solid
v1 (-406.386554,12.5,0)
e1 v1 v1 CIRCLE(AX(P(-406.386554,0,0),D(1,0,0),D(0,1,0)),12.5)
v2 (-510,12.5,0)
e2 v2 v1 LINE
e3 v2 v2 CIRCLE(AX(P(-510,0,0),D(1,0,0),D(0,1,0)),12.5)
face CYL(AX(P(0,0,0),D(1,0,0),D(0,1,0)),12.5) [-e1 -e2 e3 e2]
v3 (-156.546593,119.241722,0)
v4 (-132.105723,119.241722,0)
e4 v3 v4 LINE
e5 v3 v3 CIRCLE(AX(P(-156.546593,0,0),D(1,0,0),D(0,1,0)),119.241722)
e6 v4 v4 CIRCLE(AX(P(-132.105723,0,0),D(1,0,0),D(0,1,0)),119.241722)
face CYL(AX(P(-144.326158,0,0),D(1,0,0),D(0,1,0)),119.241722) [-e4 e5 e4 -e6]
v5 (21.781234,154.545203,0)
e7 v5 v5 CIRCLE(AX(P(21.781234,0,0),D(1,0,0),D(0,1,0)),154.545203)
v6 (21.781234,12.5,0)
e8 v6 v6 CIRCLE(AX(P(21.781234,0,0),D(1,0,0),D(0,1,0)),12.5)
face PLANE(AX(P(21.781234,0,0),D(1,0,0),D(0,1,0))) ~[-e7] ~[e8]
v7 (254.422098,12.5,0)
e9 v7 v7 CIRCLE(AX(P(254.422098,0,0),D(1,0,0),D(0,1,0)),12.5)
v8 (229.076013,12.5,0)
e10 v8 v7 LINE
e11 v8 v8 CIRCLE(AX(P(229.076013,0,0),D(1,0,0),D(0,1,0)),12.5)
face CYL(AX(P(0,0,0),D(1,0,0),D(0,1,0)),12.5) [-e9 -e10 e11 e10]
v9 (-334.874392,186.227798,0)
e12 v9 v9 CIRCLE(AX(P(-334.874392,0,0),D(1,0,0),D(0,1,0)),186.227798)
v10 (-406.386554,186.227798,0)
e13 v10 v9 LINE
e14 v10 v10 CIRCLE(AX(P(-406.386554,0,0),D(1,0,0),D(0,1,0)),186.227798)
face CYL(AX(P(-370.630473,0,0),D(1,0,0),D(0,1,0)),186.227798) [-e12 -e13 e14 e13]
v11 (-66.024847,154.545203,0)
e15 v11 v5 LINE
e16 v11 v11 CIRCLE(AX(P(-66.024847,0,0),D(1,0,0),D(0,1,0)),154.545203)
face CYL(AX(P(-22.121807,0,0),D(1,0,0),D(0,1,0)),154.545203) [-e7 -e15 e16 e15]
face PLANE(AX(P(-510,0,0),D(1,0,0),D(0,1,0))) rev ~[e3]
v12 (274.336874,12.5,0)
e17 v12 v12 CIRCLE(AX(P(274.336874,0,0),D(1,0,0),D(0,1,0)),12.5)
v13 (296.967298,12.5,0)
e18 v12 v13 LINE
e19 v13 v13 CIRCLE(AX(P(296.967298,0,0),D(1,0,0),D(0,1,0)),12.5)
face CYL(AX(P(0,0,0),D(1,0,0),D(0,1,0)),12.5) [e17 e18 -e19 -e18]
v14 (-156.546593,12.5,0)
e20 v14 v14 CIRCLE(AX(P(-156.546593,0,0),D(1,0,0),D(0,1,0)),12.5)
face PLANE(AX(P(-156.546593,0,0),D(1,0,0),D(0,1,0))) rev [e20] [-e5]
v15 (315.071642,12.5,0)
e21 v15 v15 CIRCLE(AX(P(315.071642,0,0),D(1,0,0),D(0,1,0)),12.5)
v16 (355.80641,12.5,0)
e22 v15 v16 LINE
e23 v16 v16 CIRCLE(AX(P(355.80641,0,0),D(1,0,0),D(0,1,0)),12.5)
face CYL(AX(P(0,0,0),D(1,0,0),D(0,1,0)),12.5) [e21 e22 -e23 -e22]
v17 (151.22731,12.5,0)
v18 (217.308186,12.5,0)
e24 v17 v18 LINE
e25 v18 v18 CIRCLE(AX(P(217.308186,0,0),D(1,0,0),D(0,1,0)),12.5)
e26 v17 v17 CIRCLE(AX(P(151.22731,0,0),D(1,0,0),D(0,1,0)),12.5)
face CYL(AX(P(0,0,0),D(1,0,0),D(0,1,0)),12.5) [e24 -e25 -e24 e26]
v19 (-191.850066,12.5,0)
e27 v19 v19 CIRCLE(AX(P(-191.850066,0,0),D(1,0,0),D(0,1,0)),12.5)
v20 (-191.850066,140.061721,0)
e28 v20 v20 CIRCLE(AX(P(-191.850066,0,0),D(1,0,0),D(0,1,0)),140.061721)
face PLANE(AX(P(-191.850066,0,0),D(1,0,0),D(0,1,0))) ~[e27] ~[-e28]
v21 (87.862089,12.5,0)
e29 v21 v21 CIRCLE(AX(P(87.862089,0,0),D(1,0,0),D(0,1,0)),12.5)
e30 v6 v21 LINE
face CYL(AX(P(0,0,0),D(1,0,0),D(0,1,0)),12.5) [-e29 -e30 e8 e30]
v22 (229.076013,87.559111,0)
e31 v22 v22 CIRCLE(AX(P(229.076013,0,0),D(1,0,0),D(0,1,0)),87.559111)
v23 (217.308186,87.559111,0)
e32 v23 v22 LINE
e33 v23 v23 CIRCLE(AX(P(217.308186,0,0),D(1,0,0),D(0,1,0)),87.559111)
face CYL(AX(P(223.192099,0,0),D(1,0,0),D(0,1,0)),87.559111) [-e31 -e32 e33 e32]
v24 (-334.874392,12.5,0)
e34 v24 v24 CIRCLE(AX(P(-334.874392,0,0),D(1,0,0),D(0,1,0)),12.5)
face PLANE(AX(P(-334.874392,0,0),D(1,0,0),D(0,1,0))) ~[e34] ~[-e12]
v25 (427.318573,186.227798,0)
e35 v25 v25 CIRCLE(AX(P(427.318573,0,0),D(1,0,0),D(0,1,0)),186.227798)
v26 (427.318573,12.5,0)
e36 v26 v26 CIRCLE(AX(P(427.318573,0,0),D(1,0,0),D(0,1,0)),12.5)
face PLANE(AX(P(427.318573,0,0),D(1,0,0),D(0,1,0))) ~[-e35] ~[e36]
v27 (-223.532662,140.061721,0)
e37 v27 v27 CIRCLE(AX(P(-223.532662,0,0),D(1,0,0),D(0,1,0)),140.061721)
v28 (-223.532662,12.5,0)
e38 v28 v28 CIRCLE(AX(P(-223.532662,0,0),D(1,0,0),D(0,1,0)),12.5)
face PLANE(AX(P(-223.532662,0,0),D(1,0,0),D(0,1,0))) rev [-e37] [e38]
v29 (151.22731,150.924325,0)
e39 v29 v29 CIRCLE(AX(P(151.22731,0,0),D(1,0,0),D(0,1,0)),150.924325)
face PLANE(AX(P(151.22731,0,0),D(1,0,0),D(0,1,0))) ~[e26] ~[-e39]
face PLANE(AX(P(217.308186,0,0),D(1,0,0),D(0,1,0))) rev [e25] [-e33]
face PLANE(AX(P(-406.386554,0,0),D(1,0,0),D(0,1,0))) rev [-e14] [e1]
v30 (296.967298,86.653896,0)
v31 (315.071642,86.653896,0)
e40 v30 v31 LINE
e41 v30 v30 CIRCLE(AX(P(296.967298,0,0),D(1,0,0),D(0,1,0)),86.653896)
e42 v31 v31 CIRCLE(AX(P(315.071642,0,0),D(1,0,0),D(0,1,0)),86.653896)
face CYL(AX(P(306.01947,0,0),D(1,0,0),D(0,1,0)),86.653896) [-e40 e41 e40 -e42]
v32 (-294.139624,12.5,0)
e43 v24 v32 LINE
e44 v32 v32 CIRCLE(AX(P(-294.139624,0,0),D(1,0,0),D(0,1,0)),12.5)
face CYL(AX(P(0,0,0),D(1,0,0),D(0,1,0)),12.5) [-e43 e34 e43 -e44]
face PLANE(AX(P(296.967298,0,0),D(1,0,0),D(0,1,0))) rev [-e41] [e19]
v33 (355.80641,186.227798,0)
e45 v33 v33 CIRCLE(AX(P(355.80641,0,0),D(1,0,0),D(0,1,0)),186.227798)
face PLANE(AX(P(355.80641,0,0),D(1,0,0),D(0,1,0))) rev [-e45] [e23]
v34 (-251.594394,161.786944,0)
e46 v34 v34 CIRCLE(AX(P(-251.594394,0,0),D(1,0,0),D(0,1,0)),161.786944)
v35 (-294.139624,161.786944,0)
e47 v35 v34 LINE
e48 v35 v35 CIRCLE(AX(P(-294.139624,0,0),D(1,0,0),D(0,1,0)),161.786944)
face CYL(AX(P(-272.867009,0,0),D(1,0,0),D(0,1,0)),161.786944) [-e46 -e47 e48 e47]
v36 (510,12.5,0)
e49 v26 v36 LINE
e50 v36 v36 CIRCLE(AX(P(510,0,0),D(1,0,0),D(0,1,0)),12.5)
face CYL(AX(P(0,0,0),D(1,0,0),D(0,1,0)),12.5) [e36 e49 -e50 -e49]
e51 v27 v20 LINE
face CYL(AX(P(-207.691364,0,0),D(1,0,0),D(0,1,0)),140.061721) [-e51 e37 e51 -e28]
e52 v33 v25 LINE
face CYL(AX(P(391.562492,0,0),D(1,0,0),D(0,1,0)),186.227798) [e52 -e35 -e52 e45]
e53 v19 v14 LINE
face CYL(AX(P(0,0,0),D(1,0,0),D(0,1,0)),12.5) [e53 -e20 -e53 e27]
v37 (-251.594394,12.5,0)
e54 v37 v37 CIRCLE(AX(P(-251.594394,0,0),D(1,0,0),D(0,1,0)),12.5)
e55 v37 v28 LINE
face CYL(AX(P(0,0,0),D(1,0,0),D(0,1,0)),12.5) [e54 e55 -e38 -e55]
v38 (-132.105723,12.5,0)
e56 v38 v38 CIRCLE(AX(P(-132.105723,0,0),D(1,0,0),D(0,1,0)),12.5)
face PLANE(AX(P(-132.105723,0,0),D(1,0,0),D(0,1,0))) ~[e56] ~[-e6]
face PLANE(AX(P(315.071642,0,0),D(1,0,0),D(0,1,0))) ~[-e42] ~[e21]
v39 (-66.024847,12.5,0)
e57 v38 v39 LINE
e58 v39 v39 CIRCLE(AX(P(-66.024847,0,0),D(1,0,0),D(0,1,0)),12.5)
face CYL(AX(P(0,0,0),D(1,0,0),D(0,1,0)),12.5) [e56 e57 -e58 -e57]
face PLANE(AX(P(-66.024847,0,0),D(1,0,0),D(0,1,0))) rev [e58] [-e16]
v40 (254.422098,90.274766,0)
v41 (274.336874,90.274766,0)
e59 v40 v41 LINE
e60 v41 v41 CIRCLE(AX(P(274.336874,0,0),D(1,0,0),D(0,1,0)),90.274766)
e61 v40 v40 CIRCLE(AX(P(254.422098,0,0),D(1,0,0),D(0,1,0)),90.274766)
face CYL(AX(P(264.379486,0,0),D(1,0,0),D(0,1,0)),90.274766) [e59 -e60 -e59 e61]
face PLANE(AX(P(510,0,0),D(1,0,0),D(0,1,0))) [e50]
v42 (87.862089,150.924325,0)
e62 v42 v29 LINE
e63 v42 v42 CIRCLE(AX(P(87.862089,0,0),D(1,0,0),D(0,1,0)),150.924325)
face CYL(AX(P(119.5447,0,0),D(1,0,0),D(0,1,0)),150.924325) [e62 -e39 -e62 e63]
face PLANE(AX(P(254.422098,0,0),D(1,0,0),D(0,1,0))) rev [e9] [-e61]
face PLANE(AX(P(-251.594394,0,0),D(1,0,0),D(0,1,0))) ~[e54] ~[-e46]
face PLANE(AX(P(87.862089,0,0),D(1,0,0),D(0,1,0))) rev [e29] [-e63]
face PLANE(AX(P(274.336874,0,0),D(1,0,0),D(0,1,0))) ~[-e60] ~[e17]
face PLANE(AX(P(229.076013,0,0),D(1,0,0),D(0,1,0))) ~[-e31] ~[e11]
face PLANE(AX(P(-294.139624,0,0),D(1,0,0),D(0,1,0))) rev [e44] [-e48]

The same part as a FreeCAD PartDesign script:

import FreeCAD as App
import Part
import Sketcher
from FreeCAD import Vector

doc = App.newDocument("Part")
params = doc.addObject("Spreadsheet::Sheet", "Params")
for row, (alias, value) in enumerate([
    ("sketch1_diameter", "25 mm"),
    ("pad1_length", "1020 mm"),
    ("revolution_angle", "360 deg"),
], start=1):
    params.set(f"A{row}", alias)
    params.set(f"B{row}", "=" + value)
    params.setAlias(f"B{row}", alias)

body = doc.addObject("PartDesign::Body", "Body")

sketch1 = body.newObject("Sketcher::SketchObject", "Sketch")
sketch1.AttachmentSupport = (doc.getObject("YZ_Plane"), [""])
sketch1.MapMode = "FlatFace"
sketch1.addGeometry(Part.Circle(Vector(0, 0, 0), Vector(0, 0, 1), 12.5), False)
sketch1.addConstraint(Sketcher.Constraint("Coincident", 0, 3, -1, 1))
sketch1.addConstraint(Sketcher.Constraint("Diameter", 0, 25.0))
sketch1.setExpression("Constraints[1]", "Params.sketch1_diameter")
pad1 = body.newObject("PartDesign::Pad", "Pad")
pad1.Profile = sketch1
pad1.setExpression("Length", "Params.pad1_length")
pad1.Midplane = True

sketch2 = body.newObject("Sketcher::SketchObject", "Sketch001")
sketch2.AttachmentSupport = (doc.getObject("XY_Plane"), [""])
sketch2.MapMode = "FlatFace"
sketch2.addGeometry(Part.LineSegment(Vector(355.80641, 186.227798, 0), Vector(355.80641, 0, 0)), False)
sketch2.addGeometry(Part.LineSegment(Vector(355.80641, 0, 0), Vector(427.318573, 0, 0)), False)
sketch2.addGeometry(Part.LineSegment(Vector(427.318573, 0, 0), Vector(427.318573, 186.227798, 0)), False)
sketch2.addGeometry(Part.LineSegment(Vector(427.318573, 186.227798, 0), Vector(355.80641, 186.227798, 0)), False)
sketch2.addGeometry(Part.LineSegment(Vector(-406.386554, 186.227798, 0), Vector(-406.386554, 0, 0)), False)
sketch2.addGeometry(Part.LineSegment(Vector(-406.386554, 0, 0), Vector(-334.874392, 0, 0)), False)
sketch2.addGeometry(Part.LineSegment(Vector(-334.874392, 0, 0), Vector(-334.874392, 186.227798, 0)), False)
sketch2.addGeometry(Part.LineSegment(Vector(-334.874392, 186.227798, 0), Vector(-406.386554, 186.227798, 0)), False)
sketch2.addGeometry(Part.LineSegment(Vector(-294.139624, 161.786944, 0), Vector(-294.139624, 0, 0)), False)
sketch2.addGeometry(Part.LineSegment(Vector(-294.139624, 0, 0), Vector(-251.594394, 0, 0)), False)
sketch2.addGeometry(Part.LineSegment(Vector(-251.594394, 0, 0), Vector(-251.594394, 161.786944, 0)), False)
sketch2.addGeometry(Part.LineSegment(Vector(-251.594394, 161.786944, 0), Vector(-294.139624, 161.786944, 0)), False)
sketch2.addGeometry(Part.LineSegment(Vector(-223.532662, 140.061721, 0), Vector(-223.532662, 0, 0)), False)
sketch2.addGeometry(Part.LineSegment(Vector(-223.532662, 0, 0), Vector(-191.850066, 0, 0)), False)
sketch2.addGeometry(Part.LineSegment(Vector(-191.850066, 0, 0), Vector(-191.850066, 140.061721, 0)), False)
sketch2.addGeometry(Part.LineSegment(Vector(-191.850066, 140.061721, 0), Vector(-223.532662, 140.061721, 0)), False)
sketch2.addGeometry(Part.LineSegment(Vector(-156.546593, 119.241722, 0), Vector(-156.546593, 0, 0)), False)
sketch2.addGeometry(Part.LineSegment(Vector(-156.546593, 0, 0), Vector(-132.105723, 0, 0)), False)
sketch2.addGeometry(Part.LineSegment(Vector(-132.105723, 0, 0), Vector(-132.105723, 119.241722, 0)), False)
sketch2.addGeometry(Part.LineSegment(Vector(-132.105723, 119.241722, 0), Vector(-156.546593, 119.241722, 0)), False)
sketch2.addGeometry(Part.LineSegment(Vector(-66.024847, 154.545203, 0), Vector(-66.024847, 0, 0)), False)
sketch2.addGeometry(Part.LineSegment(Vector(-66.024847, 0, 0), Vector(21.781234, 0, 0)), False)
sketch2.addGeometry(Part.LineSegment(Vector(21.781234, 0, 0), Vector(21.781234, 154.545203, 0)), False)
sketch2.addGeometry(Part.LineSegment(Vector(21.781234, 154.545203, 0), Vector(-66.024847, 154.545203, 0)), False)
sketch2.addGeometry(Part.LineSegment(Vector(87.862089, 150.924325, 0), Vector(87.862089, 0, 0)), False)
sketch2.addGeometry(Part.LineSegment(Vector(87.862089, 0, 0), Vector(151.22731, 0, 0)), False)
sketch2.addGeometry(Part.LineSegment(Vector(151.22731, 0, 0), Vector(151.22731, 150.924325, 0)), False)
sketch2.addGeometry(Part.LineSegment(Vector(151.22731, 150.924325, 0), Vector(87.862089, 150.924325, 0)), False)
sketch2.addGeometry(Part.LineSegment(Vector(217.308186, 87.559111, 0), Vector(217.308186, 0, 0)), False)
sketch2.addGeometry(Part.LineSegment(Vector(217.308186, 0, 0), Vector(229.076013, 0, 0)), False)
sketch2.addGeometry(Part.LineSegment(Vector(229.076013, 0, 0), Vector(229.076013, 87.559111, 0)), False)
sketch2.addGeometry(Part.LineSegment(Vector(229.076013, 87.559111, 0), Vector(217.308186, 87.559111, 0)), False)
sketch2.addGeometry(Part.LineSegment(Vector(254.422098, 90.274766, 0), Vector(254.422098, 0, 0)), False)
sketch2.addGeometry(Part.LineSegment(Vector(254.422098, 0, 0), Vector(274.336874, 0, 0)), False)
sketch2.addGeometry(Part.LineSegment(Vector(274.336874, 0, 0), Vector(274.336874, 90.274766, 0)), False)
sketch2.addGeometry(Part.LineSegment(Vector(274.336874, 90.274766, 0), Vector(254.422098, 90.274766, 0)), False)
sketch2.addGeometry(Part.LineSegment(Vector(296.967298, 86.653896, 0), Vector(296.967298, 0, 0)), False)
sketch2.addGeometry(Part.LineSegment(Vector(296.967298, 0, 0), Vector(315.071642, 0, 0)), False)
sketch2.addGeometry(Part.LineSegment(Vector(315.071642, 0, 0), Vector(315.071642, 86.653896, 0)), False)
sketch2.addGeometry(Part.LineSegment(Vector(315.071642, 86.653896, 0), Vector(296.967298, 86.653896, 0)), False)
sketch2.addConstraint(Sketcher.Constraint("Coincident", 0, 2, 1, 1))
sketch2.addConstraint(Sketcher.Constraint("Coincident", 1, 2, 2, 1))
sketch2.addConstraint(Sketcher.Constraint("Coincident", 2, 2, 3, 1))
sketch2.addConstraint(Sketcher.Constraint("Coincident", 3, 2, 0, 1))
sketch2.addConstraint(Sketcher.Constraint("Coincident", 4, 2, 5, 1))
sketch2.addConstraint(Sketcher.Constraint("Coincident", 5, 2, 6, 1))
sketch2.addConstraint(Sketcher.Constraint("Coincident", 6, 2, 7, 1))
sketch2.addConstraint(Sketcher.Constraint("Coincident", 7, 2, 4, 1))
sketch2.addConstraint(Sketcher.Constraint("Coincident", 8, 2, 9, 1))
sketch2.addConstraint(Sketcher.Constraint("Coincident", 9, 2, 10, 1))
sketch2.addConstraint(Sketcher.Constraint("Coincident", 10, 2, 11, 1))
sketch2.addConstraint(Sketcher.Constraint("Coincident", 11, 2, 8, 1))
sketch2.addConstraint(Sketcher.Constraint("Coincident", 12, 2, 13, 1))
sketch2.addConstraint(Sketcher.Constraint("Coincident", 13, 2, 14, 1))
sketch2.addConstraint(Sketcher.Constraint("Coincident", 14, 2, 15, 1))
sketch2.addConstraint(Sketcher.Constraint("Coincident", 15, 2, 12, 1))
sketch2.addConstraint(Sketcher.Constraint("Coincident", 16, 2, 17, 1))
sketch2.addConstraint(Sketcher.Constraint("Coincident", 17, 2, 18, 1))
sketch2.addConstraint(Sketcher.Constraint("Coincident", 18, 2, 19, 1))
sketch2.addConstraint(Sketcher.Constraint("Coincident", 19, 2, 16, 1))
sketch2.addConstraint(Sketcher.Constraint("Coincident", 20, 2, 21, 1))
sketch2.addConstraint(Sketcher.Constraint("Coincident", 21, 2, 22, 1))
sketch2.addConstraint(Sketcher.Constraint("Coincident", 22, 2, 23, 1))
sketch2.addConstraint(Sketcher.Constraint("Coincident", 23, 2, 20, 1))
sketch2.addConstraint(Sketcher.Constraint("Coincident", 24, 2, 25, 1))
sketch2.addConstraint(Sketcher.Constraint("Coincident", 25, 2, 26, 1))
sketch2.addConstraint(Sketcher.Constraint("Coincident", 26, 2, 27, 1))
sketch2.addConstraint(Sketcher.Constraint("Coincident", 27, 2, 24, 1))
sketch2.addConstraint(Sketcher.Constraint("Coincident", 28, 2, 29, 1))
sketch2.addConstraint(Sketcher.Constraint("Coincident", 29, 2, 30, 1))
sketch2.addConstraint(Sketcher.Constraint("Coincident", 30, 2, 31, 1))
sketch2.addConstraint(Sketcher.Constraint("Coincident", 31, 2, 28, 1))
sketch2.addConstraint(Sketcher.Constraint("Coincident", 32, 2, 33, 1))
sketch2.addConstraint(Sketcher.Constraint("Coincident", 33, 2, 34, 1))
sketch2.addConstraint(Sketcher.Constraint("Coincident", 34, 2, 35, 1))
sketch2.addConstraint(Sketcher.Constraint("Coincident", 35, 2, 32, 1))
sketch2.addConstraint(Sketcher.Constraint("Coincident", 36, 2, 37, 1))
sketch2.addConstraint(Sketcher.Constraint("Coincident", 37, 2, 38, 1))
sketch2.addConstraint(Sketcher.Constraint("Coincident", 38, 2, 39, 1))
sketch2.addConstraint(Sketcher.Constraint("Coincident", 39, 2, 36, 1))
sketch2.addConstraint(Sketcher.Constraint("Vertical", 0))
sketch2.addConstraint(Sketcher.Constraint("Horizontal", 1))
sketch2.addConstraint(Sketcher.Constraint("Vertical", 2))
sketch2.addConstraint(Sketcher.Constraint("Horizontal", 3))
sketch2.addConstraint(Sketcher.Constraint("Vertical", 4))
sketch2.addConstraint(Sketcher.Constraint("Horizontal", 5))
sketch2.addConstraint(Sketcher.Constraint("Vertical", 6))
sketch2.addConstraint(Sketcher.Constraint("Horizontal", 7))
sketch2.addConstraint(Sketcher.Constraint("Vertical", 8))
sketch2.addConstraint(Sketcher.Constraint("Horizontal", 9))
sketch2.addConstraint(Sketcher.Constraint("Vertical", 10))
sketch2.addConstraint(Sketcher.Constraint("Horizontal", 11))
sketch2.addConstraint(Sketcher.Constraint("Vertical", 12))
sketch2.addConstraint(Sketcher.Constraint("Horizontal", 13))
sketch2.addConstraint(Sketcher.Constraint("Vertical", 14))
sketch2.addConstraint(Sketcher.Constraint("Horizontal", 15))
sketch2.addConstraint(Sketcher.Constraint("Vertical", 16))
sketch2.addConstraint(Sketcher.Constraint("Horizontal", 17))
sketch2.addConstraint(Sketcher.Constraint("Vertical", 18))
sketch2.addConstraint(Sketcher.Constraint("Horizontal", 19))
sketch2.addConstraint(Sketcher.Constraint("Vertical", 20))
sketch2.addConstraint(Sketcher.Constraint("Horizontal", 21))
sketch2.addConstraint(Sketcher.Constraint("Vertical", 22))
sketch2.addConstraint(Sketcher.Constraint("Horizontal", 23))
sketch2.addConstraint(Sketcher.Constraint("Vertical", 24))
sketch2.addConstraint(Sketcher.Constraint("Horizontal", 25))
sketch2.addConstraint(Sketcher.Constraint("Vertical", 26))
sketch2.addConstraint(Sketcher.Constraint("Horizontal", 27))
sketch2.addConstraint(Sketcher.Constraint("Vertical", 28))
sketch2.addConstraint(Sketcher.Constraint("Horizontal", 29))
sketch2.addConstraint(Sketcher.Constraint("Vertical", 30))
sketch2.addConstraint(Sketcher.Constraint("Horizontal", 31))
sketch2.addConstraint(Sketcher.Constraint("Vertical", 32))
sketch2.addConstraint(Sketcher.Constraint("Horizontal", 33))
sketch2.addConstraint(Sketcher.Constraint("Vertical", 34))
sketch2.addConstraint(Sketcher.Constraint("Horizontal", 35))
sketch2.addConstraint(Sketcher.Constraint("Vertical", 36))
sketch2.addConstraint(Sketcher.Constraint("Horizontal", 37))
sketch2.addConstraint(Sketcher.Constraint("Vertical", 38))
sketch2.addConstraint(Sketcher.Constraint("Horizontal", 39))
sketch2.addConstraint(Sketcher.Constraint("PointOnObject", 0, 2, -1))
sketch2.addConstraint(Sketcher.Constraint("PointOnObject", 4, 2, -1))
sketch2.addConstraint(Sketcher.Constraint("PointOnObject", 8, 2, -1))
sketch2.addConstraint(Sketcher.Constraint("PointOnObject", 12, 2, -1))
sketch2.addConstraint(Sketcher.Constraint("PointOnObject", 16, 2, -1))
sketch2.addConstraint(Sketcher.Constraint("PointOnObject", 20, 2, -1))
sketch2.addConstraint(Sketcher.Constraint("PointOnObject", 24, 2, -1))
sketch2.addConstraint(Sketcher.Constraint("PointOnObject", 28, 2, -1))
sketch2.addConstraint(Sketcher.Constraint("PointOnObject", 32, 2, -1))
sketch2.addConstraint(Sketcher.Constraint("PointOnObject", 36, 2, -1))
sketch2.addConstraint(Sketcher.Constraint("Horizontal", 3, 2, 6, 2))
sketch2.addConstraint(Sketcher.Constraint("Equal", 3, 5))
sketch2.addConstraint(Sketcher.Constraint("DistanceY", 18, 2, 14, 2, 20.819999))
sketch2.addConstraint(Sketcher.Constraint("DistanceY", 0, 2, 0, 1, 186.227798))
sketch2.addConstraint(Sketcher.Constraint("DistanceX", 9, 1, 9, 2, 42.545229))
sketch2.addConstraint(Sketcher.Constraint("DistanceX", 17, 1, 17, 2, 24.44087))
sketch2.addConstraint(Sketcher.Constraint("DistanceX", 21, 1, 21, 2, 87.806081))
sketch2.addConstraint(Sketcher.Constraint("DistanceX", 25, 1, 25, 2, 63.365221))
sketch2.addConstraint(Sketcher.Constraint("DistanceY", 12, 2, 12, 1, 140.061721))
sketch2.addConstraint(Sketcher.Constraint("DistanceY", 28, 2, 28, 1, 87.559111))
sketch2.addConstraint(Sketcher.Constraint("DistanceX", -1, 1, 32, 2, 254.422098))
sketch2.addConstraint(Sketcher.Constraint("DistanceX", 5, 2, 0, 2, 690.680802))
sketch2.addConstraint(Sketcher.Constraint("DistanceX", 9, 2, 16, 2, 95.047802))
sketch2.addConstraint(Sketcher.Constraint("DistanceX", 13, 2, 21, 2, 213.6313))
sketch2.addConstraint(Sketcher.Constraint("DistanceX", 25, 2, 0, 2, 204.5791))
sketch2.addConstraint(Sketcher.Constraint("DistanceX", 32, 2, 36, 2, 42.545199))
sketch2.addConstraint(Sketcher.Constraint("DistanceX", 1, 1, 1, 2, 71.512163))
sketch2.addConstraint(Sketcher.Constraint("DistanceX", 13, 1, 13, 2, 31.682596))
sketch2.addConstraint(Sketcher.Constraint("DistanceX", 29, 1, 29, 2, 11.767827))
sketch2.addConstraint(Sketcher.Constraint("DistanceX", 33, 1, 33, 2, 19.914776))
sketch2.addConstraint(Sketcher.Constraint("DistanceX", 37, 1, 37, 2, 18.104345))
sketch2.addConstraint(Sketcher.Constraint("DistanceY", 8, 2, 8, 1, 161.786944))
sketch2.addConstraint(Sketcher.Constraint("DistanceY", 20, 2, 20, 1, 154.545203))
sketch2.addConstraint(Sketcher.Constraint("DistanceY", 24, 2, 24, 1, 150.924325))
sketch2.addConstraint(Sketcher.Constraint("DistanceY", 32, 2, 32, 1, 90.274766))
sketch2.addConstraint(Sketcher.Constraint("DistanceY", 36, 2, 36, 1, 86.653896))
sketch2.addConstraint(Sketcher.Constraint("DistanceX", -1, 1, 0, 2, 355.80641))
sketch2.addConstraint(Sketcher.Constraint("DistanceX", 12, 2, -1, 1, 223.532662))
sketch2.addConstraint(Sketcher.Constraint("DistanceX", 4, 2, 8, 2, 112.246931))
sketch2.addConstraint(Sketcher.Constraint("DistanceX", 21, 2, 28, 2, 195.526952))
revolution = body.newObject("PartDesign::Revolution", "Revolution")
revolution.Profile = sketch2
revolution.ReferenceAxis = (sketch2, ["H_Axis"])
revolution.setExpression("Angle", "Params.revolution_angle")

doc.recompute()
